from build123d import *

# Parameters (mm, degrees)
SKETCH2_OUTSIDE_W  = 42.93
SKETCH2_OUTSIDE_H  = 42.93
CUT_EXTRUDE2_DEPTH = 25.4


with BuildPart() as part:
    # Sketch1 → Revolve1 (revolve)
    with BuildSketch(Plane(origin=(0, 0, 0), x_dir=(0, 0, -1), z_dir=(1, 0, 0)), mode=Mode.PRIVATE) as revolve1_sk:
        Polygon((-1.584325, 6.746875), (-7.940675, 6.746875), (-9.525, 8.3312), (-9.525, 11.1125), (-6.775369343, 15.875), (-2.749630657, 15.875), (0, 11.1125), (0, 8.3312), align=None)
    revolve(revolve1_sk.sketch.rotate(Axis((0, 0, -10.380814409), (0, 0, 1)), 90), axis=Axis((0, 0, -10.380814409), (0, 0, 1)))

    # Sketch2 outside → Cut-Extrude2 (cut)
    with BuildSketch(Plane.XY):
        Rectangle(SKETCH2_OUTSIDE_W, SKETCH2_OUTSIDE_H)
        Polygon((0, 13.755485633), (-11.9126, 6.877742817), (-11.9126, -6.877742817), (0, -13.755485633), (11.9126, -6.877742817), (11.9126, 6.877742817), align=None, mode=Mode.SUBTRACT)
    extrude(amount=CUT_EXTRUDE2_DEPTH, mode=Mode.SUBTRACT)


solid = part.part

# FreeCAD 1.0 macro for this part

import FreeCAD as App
import Part
import Sketcher
Q = App.Units.Quantity

doc = App.newDocument("Part")
body = doc.addObject("PartDesign::Body", "Body")

# Sketch on YZ plane
sketch1 = body.newObject("Sketcher::SketchObject", "Sketch")
sketch1.AttachmentSupport = (doc.getObject("YZ_Plane"), [""])
sketch1.MapMode = "FlatFace"
sketch1.addGeometry([
    Part.LineSegment(App.Vector(6.7, 7.9, 0), App.Vector(6.7, 1.6, 0)),  # 0
    Part.LineSegment(App.Vector(6.7, 1.6, 0), App.Vector(8.3, 0, 0)),  # 1
    Part.LineSegment(App.Vector(8.3, 0, 0), App.Vector(11.1, 0, 0)),  # 2
    Part.LineSegment(App.Vector(11.1, 0, 0), App.Vector(15.9, 2.7, 0)),  # 3
    Part.LineSegment(App.Vector(15.9, 2.7, 0), App.Vector(15.9, 6.8, 0)),  # 4
    Part.LineSegment(App.Vector(15.9, 6.8, 0), App.Vector(11.1, 9.5, 0)),  # 5
    Part.LineSegment(App.Vector(11.1, 9.5, 0), App.Vector(8.3, 9.5, 0)),  # 6
    Part.LineSegment(App.Vector(8.3, 9.5, 0), App.Vector(6.7, 7.9, 0)),  # 7
], False)
sketch1.addConstraint([
    Sketcher.Constraint("Coincident", 0, 2, 1, 1),
    Sketcher.Constraint("Coincident", 1, 2, 2, 1),
    Sketcher.Constraint("Coincident", 2, 2, 3, 1),
    Sketcher.Constraint("Coincident", 3, 2, 4, 1),
    Sketcher.Constraint("Coincident", 4, 2, 5, 1),
    Sketcher.Constraint("Coincident", 5, 2, 6, 1),
    Sketcher.Constraint("Coincident", 6, 2, 7, 1),
    Sketcher.Constraint("Coincident", 7, 2, 0, 1),
    Sketcher.Constraint("Vertical", 0),
    Sketcher.Constraint("Horizontal", 2),
    Sketcher.Constraint("Vertical", 4),
    Sketcher.Constraint("Horizontal", 6),
    Sketcher.Constraint("PointOnObject", 1, 2, -1),
    Sketcher.Constraint("Perpendicular", 1, 7),
    Sketcher.Constraint("Vertical", 2, 2, 5, 2),
    Sketcher.Constraint("Vertical", 1, 2, 6, 2),
    Sketcher.Constraint("Equal", 3, 5),
    Sketcher.Constraint("Equal", 1, 7),
    Sketcher.Constraint("Angle", 3, Q("30 deg")),
    Sketcher.Constraint("DistanceX", 2, 1, 2, 2, Q("0.1095 in")),
    Sketcher.Constraint("DistanceX", -1, 1, 0, 2, Q("0.265625 in")),
    Sketcher.Constraint("DistanceX", -1, 1, 1, 2, Q("0.328 in")),
    Sketcher.Constraint("DistanceX", -1, 1, 3, 2, Q("0.625 in")),
    Sketcher.Constraint("DistanceY", -1, 1, 5, 2, Q("0.375 in")),
])
revolution = body.newObject("PartDesign::Revolution", "Revolution")
revolution.Profile = sketch1
revolution.ReferenceAxis = (sketch1, ["V_Axis"])
revolution.Angle = 360

# Sketch on XY plane
sketch2 = body.newObject("Sketcher::SketchObject", "Sketch001")
sketch2.AttachmentSupport = (doc.getObject("XY_Plane"), [""])
sketch2.MapMode = "FlatFace"
sketch2.addGeometry([
    Part.LineSegment(App.Vector(-21, 21, 0), App.Vector(-21, -21, 0)),  # 0
    Part.LineSegment(App.Vector(-21, -21, 0), App.Vector(21, -21, 0)),  # 1
    Part.LineSegment(App.Vector(21, -21, 0), App.Vector(21, 21, 0)),  # 2
    Part.LineSegment(App.Vector(21, 21, 0), App.Vector(-21, 21, 0)),  # 3
    Part.LineSegment(App.Vector(-12, 7, 0), App.Vector(0, 14, 0)),  # 4
    Part.LineSegment(App.Vector(0, 14, 0), App.Vector(12, 7, 0)),  # 5
    Part.LineSegment(App.Vector(12, 7, 0), App.Vector(12, -7, 0)),  # 6
    Part.LineSegment(App.Vector(12, -7, 0), App.Vector(0, -14, 0)),  # 7
    Part.LineSegment(App.Vector(0, -14, 0), App.Vector(-12, -7, 0)),  # 8
    Part.LineSegment(App.Vector(-12, -7, 0), App.Vector(-12, 7, 0)),  # 9
], False)
sketch2.addConstraint([
    Sketcher.Constraint("Coincident", 0, 2, 1, 1),
    Sketcher.Constraint("Coincident", 1, 2, 2, 1),
    Sketcher.Constraint("Coincident", 2, 2, 3, 1),
    Sketcher.Constraint("Coincident", 3, 2, 0, 1),
    Sketcher.Constraint("Coincident", 4, 2, 5, 1),
    Sketcher.Constraint("Coincident", 5, 2, 6, 1),
    Sketcher.Constraint("Coincident", 6, 2, 7, 1),
    Sketcher.Constraint("Coincident", 7, 2, 8, 1),
    Sketcher.Constraint("Coincident", 8, 2, 9, 1),
    Sketcher.Constraint("Coincident", 9, 2, 4, 1),
    Sketcher.Constraint("Vertical", 0),
    Sketcher.Constraint("Horizontal", 1),
    Sketcher.Constraint("Vertical", 2),
    Sketcher.Constraint("Horizontal", 3),
    Sketcher.Constraint("Vertical", 6),
    Sketcher.Constraint("Vertical", 9),
    Sketcher.Constraint("Symmetric", 0, 2, 2, 2, -1, 1),
    Sketcher.Constraint("Symmetric", 4, 2, 7, 2, -1, 1),
    Sketcher.Constraint("Symmetric", 5, 2, 8, 2, -1, 1),
    Sketcher.Constraint("PointOnObject", 4, 2, -2),
    Sketcher.Constraint("Parallel", 4, 7),
    Sketcher.Constraint("Horizontal", 6, 2, 8, 2),
    Sketcher.Constraint("Equal", 3, 0),
    Sketcher.Constraint("Angle", 4, Q("30 deg")),
    Sketcher.Constraint("DistanceX", -1, 1, 5, 2, Q("0.469 in")),
    Sketcher.Constraint("DistanceX", 1, 1, 1, 2, 42.93),
    Sketcher.Constraint("DistanceY", 6, 2, 6, 1, 13.755486),
])
pocket1 = body.newObject("PartDesign::Pocket", "Pocket")
pocket1.Profile = sketch2
pocket1.Length = Q("1 in")
pocket1.Reversed = True

doc.recompute()
